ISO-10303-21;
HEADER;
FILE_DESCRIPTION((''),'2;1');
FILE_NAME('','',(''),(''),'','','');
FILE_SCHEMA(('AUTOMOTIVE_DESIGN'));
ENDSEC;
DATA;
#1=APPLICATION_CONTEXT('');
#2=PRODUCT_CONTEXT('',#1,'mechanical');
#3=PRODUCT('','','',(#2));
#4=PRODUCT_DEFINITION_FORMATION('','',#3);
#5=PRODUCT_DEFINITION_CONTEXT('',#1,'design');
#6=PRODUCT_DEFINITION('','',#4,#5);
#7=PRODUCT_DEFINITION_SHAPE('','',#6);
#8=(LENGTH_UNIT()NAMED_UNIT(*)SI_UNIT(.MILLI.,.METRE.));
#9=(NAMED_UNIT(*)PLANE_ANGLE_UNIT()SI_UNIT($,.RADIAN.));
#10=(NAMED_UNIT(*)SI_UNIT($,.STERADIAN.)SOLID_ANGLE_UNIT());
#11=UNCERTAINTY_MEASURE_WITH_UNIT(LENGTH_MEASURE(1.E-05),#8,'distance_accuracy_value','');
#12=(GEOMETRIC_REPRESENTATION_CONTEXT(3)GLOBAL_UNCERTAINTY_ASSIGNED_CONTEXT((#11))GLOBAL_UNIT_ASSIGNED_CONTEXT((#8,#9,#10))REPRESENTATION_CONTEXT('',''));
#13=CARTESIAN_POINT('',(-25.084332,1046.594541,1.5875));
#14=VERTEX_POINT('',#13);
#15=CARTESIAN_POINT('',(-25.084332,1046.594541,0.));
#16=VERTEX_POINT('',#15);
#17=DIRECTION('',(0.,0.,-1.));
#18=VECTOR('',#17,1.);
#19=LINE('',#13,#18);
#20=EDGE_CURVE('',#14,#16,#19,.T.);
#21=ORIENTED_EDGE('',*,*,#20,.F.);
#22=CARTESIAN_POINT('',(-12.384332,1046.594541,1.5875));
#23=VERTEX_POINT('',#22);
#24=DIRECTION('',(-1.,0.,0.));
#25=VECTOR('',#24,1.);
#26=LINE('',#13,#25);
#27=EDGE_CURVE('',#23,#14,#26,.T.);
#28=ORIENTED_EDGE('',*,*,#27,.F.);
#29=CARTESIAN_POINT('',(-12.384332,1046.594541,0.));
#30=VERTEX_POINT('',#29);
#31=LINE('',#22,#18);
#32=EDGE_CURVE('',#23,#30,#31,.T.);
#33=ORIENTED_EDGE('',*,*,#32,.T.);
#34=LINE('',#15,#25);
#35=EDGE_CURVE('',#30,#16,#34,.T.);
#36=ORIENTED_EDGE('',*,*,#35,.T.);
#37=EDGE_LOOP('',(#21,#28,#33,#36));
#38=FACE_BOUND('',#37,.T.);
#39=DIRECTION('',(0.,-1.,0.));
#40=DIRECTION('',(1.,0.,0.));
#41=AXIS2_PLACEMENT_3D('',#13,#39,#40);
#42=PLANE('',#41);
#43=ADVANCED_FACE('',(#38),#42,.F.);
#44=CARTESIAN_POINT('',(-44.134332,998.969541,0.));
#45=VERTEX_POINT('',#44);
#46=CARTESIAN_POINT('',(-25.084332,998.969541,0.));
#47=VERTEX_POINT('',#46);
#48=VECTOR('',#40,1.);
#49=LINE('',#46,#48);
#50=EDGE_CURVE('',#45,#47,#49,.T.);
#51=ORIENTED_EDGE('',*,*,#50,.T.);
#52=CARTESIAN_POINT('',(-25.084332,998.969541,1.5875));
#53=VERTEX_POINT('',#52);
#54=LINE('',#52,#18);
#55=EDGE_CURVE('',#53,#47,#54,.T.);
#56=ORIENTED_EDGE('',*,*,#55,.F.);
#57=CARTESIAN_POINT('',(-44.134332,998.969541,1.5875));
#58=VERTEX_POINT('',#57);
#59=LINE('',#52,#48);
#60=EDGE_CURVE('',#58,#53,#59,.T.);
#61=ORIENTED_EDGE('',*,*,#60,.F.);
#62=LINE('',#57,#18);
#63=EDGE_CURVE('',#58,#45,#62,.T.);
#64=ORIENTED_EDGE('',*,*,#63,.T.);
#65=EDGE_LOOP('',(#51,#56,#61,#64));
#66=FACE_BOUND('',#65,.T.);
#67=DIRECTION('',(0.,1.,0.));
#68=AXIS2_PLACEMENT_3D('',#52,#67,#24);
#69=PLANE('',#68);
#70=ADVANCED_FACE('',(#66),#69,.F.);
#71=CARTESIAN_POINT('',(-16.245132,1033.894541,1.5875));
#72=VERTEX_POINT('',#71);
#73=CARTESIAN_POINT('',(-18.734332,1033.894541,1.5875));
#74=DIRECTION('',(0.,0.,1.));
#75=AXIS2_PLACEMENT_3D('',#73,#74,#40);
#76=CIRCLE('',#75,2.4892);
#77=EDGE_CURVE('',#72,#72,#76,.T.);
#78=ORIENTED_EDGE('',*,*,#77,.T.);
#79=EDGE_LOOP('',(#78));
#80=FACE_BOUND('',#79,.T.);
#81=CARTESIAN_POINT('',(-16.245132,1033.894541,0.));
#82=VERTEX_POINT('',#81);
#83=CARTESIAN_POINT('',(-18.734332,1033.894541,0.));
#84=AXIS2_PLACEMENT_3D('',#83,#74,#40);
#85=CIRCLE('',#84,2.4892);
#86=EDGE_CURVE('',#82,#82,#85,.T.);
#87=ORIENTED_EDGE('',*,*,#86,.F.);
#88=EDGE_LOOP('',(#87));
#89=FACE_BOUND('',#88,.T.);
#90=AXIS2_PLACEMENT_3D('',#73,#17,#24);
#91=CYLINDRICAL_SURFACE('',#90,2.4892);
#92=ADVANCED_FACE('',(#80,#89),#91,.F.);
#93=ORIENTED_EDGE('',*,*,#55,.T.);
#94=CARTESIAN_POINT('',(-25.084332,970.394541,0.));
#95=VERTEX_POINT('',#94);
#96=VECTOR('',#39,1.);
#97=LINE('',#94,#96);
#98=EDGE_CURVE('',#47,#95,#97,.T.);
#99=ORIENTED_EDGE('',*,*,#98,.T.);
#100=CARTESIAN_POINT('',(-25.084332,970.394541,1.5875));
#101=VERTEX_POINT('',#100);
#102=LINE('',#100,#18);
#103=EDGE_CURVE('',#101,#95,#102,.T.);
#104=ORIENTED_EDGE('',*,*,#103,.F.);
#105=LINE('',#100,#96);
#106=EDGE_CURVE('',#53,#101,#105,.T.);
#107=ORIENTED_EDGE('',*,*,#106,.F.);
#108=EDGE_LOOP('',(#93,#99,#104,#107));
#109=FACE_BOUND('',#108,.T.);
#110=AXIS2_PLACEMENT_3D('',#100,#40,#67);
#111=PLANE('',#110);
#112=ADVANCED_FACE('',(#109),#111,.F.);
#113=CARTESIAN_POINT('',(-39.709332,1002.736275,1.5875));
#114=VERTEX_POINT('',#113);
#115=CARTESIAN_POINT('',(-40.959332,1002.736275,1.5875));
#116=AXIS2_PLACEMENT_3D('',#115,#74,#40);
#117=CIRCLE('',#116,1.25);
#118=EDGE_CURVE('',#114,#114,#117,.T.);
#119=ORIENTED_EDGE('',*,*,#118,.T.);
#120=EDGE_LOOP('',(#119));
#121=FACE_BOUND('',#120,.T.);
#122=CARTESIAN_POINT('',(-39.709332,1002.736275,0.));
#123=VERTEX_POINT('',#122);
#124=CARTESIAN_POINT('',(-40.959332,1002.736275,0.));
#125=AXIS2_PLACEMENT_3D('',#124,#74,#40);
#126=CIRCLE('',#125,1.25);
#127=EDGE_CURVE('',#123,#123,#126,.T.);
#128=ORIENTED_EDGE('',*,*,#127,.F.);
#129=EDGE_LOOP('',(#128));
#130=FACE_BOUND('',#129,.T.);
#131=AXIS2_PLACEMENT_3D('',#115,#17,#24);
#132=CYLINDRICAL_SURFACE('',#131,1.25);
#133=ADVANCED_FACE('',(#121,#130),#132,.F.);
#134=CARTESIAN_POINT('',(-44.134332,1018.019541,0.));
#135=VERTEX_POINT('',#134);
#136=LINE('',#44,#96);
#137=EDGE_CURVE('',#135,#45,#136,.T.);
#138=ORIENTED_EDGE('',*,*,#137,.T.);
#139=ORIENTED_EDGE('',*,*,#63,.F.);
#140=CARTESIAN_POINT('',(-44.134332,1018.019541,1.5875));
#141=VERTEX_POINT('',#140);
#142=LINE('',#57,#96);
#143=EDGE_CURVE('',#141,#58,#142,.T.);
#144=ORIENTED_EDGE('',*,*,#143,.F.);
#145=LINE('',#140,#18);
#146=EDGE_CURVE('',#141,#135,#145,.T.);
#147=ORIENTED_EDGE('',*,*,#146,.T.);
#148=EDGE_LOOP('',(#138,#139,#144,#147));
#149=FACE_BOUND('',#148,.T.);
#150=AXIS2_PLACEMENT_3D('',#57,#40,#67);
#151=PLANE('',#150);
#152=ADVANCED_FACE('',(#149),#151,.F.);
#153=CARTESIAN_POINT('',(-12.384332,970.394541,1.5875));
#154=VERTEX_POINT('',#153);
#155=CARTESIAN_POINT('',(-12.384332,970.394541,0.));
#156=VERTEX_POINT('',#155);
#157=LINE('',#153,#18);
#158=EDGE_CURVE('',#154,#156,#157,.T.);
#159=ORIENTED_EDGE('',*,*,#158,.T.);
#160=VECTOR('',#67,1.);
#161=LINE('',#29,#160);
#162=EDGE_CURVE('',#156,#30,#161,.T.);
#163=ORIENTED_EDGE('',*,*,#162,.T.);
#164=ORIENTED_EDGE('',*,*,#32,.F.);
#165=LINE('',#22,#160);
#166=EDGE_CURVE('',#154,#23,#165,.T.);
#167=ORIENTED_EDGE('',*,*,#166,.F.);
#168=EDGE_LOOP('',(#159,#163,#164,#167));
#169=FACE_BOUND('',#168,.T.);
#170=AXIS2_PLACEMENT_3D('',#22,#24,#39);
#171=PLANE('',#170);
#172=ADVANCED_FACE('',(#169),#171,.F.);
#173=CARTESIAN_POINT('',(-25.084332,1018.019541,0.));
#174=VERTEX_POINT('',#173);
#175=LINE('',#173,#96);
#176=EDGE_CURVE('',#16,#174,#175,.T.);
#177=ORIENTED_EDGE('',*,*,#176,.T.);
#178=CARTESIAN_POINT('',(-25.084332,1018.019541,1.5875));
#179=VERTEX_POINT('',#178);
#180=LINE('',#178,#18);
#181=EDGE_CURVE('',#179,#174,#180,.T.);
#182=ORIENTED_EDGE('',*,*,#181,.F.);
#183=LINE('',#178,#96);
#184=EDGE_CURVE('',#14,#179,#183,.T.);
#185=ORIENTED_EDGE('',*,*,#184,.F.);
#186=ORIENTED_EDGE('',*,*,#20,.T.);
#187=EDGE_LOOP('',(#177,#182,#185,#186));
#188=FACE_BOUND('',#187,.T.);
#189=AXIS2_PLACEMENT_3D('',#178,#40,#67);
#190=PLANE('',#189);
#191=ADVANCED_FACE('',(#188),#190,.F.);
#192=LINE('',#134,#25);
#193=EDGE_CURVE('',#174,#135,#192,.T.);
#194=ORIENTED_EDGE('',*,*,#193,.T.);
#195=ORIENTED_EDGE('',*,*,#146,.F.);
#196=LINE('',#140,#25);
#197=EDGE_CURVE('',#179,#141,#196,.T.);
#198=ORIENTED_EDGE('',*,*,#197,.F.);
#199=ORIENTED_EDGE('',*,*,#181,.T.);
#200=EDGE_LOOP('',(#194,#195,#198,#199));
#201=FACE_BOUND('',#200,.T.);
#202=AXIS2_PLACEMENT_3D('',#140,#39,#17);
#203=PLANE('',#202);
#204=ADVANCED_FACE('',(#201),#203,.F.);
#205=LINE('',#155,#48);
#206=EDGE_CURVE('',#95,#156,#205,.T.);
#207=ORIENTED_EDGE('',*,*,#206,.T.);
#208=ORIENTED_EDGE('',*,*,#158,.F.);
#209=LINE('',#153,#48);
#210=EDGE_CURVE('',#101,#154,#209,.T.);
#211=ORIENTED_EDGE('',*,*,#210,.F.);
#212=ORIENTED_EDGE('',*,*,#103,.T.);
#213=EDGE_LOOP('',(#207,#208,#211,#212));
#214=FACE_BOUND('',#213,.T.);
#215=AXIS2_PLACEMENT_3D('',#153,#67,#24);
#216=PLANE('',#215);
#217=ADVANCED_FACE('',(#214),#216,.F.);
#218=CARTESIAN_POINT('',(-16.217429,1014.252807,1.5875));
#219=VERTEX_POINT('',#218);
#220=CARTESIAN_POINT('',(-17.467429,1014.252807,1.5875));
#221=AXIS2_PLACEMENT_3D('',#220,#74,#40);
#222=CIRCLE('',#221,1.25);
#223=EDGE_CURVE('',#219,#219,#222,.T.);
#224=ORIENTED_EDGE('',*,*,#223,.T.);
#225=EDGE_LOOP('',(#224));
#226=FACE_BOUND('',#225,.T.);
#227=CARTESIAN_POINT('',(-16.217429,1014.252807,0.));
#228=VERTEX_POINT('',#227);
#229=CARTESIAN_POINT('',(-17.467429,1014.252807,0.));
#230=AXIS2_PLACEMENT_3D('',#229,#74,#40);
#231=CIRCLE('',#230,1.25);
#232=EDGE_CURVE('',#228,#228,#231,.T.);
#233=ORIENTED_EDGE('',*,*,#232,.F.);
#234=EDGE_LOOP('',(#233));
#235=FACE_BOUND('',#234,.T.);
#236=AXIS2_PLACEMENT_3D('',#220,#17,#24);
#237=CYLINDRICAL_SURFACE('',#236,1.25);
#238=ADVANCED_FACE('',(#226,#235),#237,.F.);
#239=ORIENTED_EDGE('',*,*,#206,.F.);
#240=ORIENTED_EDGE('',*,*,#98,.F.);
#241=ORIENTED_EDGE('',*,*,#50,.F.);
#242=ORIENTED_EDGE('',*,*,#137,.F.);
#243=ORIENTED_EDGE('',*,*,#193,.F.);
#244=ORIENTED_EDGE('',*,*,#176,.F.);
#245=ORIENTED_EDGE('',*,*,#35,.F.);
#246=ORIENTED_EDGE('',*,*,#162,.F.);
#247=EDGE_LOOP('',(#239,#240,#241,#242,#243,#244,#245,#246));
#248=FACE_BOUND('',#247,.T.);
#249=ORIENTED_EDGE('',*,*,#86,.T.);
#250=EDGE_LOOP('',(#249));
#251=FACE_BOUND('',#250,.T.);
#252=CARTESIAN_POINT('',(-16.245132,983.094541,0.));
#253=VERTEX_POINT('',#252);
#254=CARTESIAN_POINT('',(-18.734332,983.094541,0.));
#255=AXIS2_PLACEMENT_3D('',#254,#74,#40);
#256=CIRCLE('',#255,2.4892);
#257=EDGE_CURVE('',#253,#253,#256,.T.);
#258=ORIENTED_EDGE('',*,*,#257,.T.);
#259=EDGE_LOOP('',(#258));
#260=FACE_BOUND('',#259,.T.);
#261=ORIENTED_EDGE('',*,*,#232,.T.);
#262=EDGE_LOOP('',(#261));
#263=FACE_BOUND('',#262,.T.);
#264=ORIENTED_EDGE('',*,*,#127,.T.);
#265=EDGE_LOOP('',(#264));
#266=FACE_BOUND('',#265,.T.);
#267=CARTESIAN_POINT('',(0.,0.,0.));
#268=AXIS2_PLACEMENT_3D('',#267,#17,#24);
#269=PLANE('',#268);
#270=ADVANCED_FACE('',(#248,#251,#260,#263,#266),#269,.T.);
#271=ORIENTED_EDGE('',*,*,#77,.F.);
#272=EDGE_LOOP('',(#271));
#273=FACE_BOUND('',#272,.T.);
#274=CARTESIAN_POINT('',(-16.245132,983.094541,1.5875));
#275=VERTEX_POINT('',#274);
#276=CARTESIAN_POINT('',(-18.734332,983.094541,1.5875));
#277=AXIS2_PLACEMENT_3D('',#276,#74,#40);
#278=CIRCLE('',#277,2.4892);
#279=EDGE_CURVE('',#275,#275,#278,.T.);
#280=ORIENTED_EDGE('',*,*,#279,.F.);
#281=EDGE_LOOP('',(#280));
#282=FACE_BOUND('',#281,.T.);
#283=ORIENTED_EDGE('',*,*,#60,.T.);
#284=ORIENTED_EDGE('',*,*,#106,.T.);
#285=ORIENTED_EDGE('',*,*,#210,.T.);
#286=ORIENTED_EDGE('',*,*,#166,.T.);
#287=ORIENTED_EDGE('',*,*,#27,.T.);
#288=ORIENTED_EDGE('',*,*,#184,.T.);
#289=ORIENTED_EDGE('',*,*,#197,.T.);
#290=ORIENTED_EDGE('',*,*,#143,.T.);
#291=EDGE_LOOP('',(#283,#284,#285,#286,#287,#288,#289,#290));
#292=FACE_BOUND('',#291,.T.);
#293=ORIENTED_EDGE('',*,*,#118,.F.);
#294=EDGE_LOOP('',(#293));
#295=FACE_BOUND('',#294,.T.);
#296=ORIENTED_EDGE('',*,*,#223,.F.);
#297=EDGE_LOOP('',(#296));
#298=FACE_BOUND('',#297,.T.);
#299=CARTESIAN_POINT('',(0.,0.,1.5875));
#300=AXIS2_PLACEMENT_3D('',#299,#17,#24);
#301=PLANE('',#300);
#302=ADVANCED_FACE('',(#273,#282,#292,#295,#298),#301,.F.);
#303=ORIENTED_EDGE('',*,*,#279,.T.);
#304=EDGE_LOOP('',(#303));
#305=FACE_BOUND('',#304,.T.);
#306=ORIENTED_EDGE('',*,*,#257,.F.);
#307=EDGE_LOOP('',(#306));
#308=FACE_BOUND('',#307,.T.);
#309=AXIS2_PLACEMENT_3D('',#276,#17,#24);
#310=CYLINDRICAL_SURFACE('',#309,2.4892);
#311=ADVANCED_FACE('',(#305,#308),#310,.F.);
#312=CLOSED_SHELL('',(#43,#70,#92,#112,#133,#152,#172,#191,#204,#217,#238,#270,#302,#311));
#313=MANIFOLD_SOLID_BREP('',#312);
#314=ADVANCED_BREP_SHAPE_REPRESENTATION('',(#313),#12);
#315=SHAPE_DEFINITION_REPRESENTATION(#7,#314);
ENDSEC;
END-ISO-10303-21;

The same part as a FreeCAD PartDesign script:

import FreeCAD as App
import Part
import Sketcher
Q = App.Units.Quantity

doc = App.newDocument("Part")
body = doc.addObject("PartDesign::Body", "Body")

# Sketch on XY plane
sketch1 = body.newObject("Sketcher::SketchObject", "Sketch")
sketch1.AttachmentSupport = (doc.getObject("XY_Plane"), [""])
sketch1.MapMode = "FlatFace"
sketch1.addGeometry(Part.LineSegment(App.Vector(-25.1, 970.4, 0), App.Vector(-12.4, 970.4, 0)), False)
sketch1.addGeometry(Part.LineSegment(App.Vector(-12.4, 970.4, 0), App.Vector(-12.4, 1046.6, 0)), False)
sketch1.addGeometry(Part.LineSegment(App.Vector(-12.4, 1046.6, 0), App.Vector(-25.1, 1046.6, 0)), False)
sketch1.addGeometry(Part.LineSegment(App.Vector(-25.1, 1046.6, 0), App.Vector(-25.1, 1018, 0)), False)
sketch1.addGeometry(Part.LineSegment(App.Vector(-25.1, 1018, 0), App.Vector(-44.1, 1018, 0)), False)
sketch1.addGeometry(Part.LineSegment(App.Vector(-44.1, 1018, 0), App.Vector(-44.1, 999, 0)), False)
sketch1.addGeometry(Part.LineSegment(App.Vector(-44.1, 999, 0), App.Vector(-25.1, 999, 0)), False)
sketch1.addGeometry(Part.LineSegment(App.Vector(-25.1, 999, 0), App.Vector(-25.1, 970.4, 0)), False)
sketch1.addGeometry(Part.Circle(App.Vector(-18.7, 983.1, 0), App.Vector(0, 0, 1), 2.5), False)
sketch1.addGeometry(Part.Circle(App.Vector(-41, 1002.7, 0), App.Vector(0, 0, 1), 1.2), False)
sketch1.addGeometry(Part.Circle(App.Vector(-17.5, 1014.3, 0), App.Vector(0, 0, 1), 1.2), False)
sketch1.addGeometry(Part.Circle(App.Vector(-18.7, 1033.9, 0), App.Vector(0, 0, 1), 2.5), False)
sketch1.addConstraint(Sketcher.Constraint("Coincident", 0, 2, 1, 1))
sketch1.addConstraint(Sketcher.Constraint("Coincident", 1, 2, 2, 1))
sketch1.addConstraint(Sketcher.Constraint("Coincident", 2, 2, 3, 1))
sketch1.addConstraint(Sketcher.Constraint("Coincident", 3, 2, 4, 1))
sketch1.addConstraint(Sketcher.Constraint("Coincident", 4, 2, 5, 1))
sketch1.addConstraint(Sketcher.Constraint("Coincident", 5, 2, 6, 1))
sketch1.addConstraint(Sketcher.Constraint("Coincident", 6, 2, 7, 1))
sketch1.addConstraint(Sketcher.Constraint("Coincident", 7, 2, 0, 1))
sketch1.addConstraint(Sketcher.Constraint("Horizontal", 0))
sketch1.addConstraint(Sketcher.Constraint("Vertical", 1))
sketch1.addConstraint(Sketcher.Constraint("Horizontal", 2))
sketch1.addConstraint(Sketcher.Constraint("Vertical", 3))
sketch1.addConstraint(Sketcher.Constraint("Horizontal", 4))
sketch1.addConstraint(Sketcher.Constraint("Vertical", 5))
sketch1.addConstraint(Sketcher.Constraint("Horizontal", 6))
sketch1.addConstraint(Sketcher.Constraint("Vertical", 7))
sketch1.addConstraint(Sketcher.Constraint("Equal", 9, 10))
sketch1.addConstraint(Sketcher.Constraint("Equal", 8, 11))
sketch1.addConstraint(Sketcher.Constraint("Vertical", 8, 3, 11, 3))
sketch1.addConstraint(Sketcher.Constraint("Vertical", 3, 2, 6, 2))
sketch1.addConstraint(Sketcher.Constraint("Equal", 6, 5))
sketch1.addConstraint(Sketcher.Constraint("Equal", 3, 7))
sketch1.addConstraint(Sketcher.Constraint("DistanceY", 1, 1, 1, 2, Q("3 in")))
sketch1.addConstraint(Sketcher.Constraint("Diameter", 8, Q("0.196 in")))
sketch1.addConstraint(Sketcher.Constraint("DistanceX", 0, 1, 0, 2, Q("0.5 in")))
sketch1.addConstraint(Sketcher.Constraint("DistanceY", 8, 3, 11, 3, Q("2 in")))
sketch1.addConstraint(Sketcher.Constraint("DistanceX", 4, 2, 11, 3, Q("1 in")))
sketch1.addConstraint(Sketcher.Constraint("DistanceX", 4, 2, 4, 1, Q("0.75 in")))
sketch1.addConstraint(Sketcher.Constraint("DistanceY", 0, 2, 8, 3, Q("0.5 in")))
sketch1.addConstraint(Sketcher.Constraint("Diameter", 9, Q("2.5 mm")))
sketch1.addConstraint(Sketcher.Constraint("DistanceX", 9, 3, 8, 3, Q("0.875 in")))
sketch1.addConstraint(Sketcher.Constraint("DistanceX", 8, 3, -1, 1, Q("18.734332 mm")))
sketch1.addConstraint(Sketcher.Constraint("DistanceY", -1, 1, 8, 3, Q("983.094541 mm")))
sketch1.addConstraint(Sketcher.Constraint("DistanceX", 10, 3, -1, 1, Q("17.467429 mm")))
sketch1.addConstraint(Sketcher.Constraint("DistanceY", 9, 3, 10, 3, Q("11.516532 mm")))
sketch1.addConstraint(Sketcher.Constraint("DistanceY", -1, 1, 9, 3, Q("1002.736275 mm")))
pad1 = body.newObject("PartDesign::Pad", "Pad")
pad1.Profile = sketch1
pad1.Length = Q("0.0625 in")

doc.recompute()
